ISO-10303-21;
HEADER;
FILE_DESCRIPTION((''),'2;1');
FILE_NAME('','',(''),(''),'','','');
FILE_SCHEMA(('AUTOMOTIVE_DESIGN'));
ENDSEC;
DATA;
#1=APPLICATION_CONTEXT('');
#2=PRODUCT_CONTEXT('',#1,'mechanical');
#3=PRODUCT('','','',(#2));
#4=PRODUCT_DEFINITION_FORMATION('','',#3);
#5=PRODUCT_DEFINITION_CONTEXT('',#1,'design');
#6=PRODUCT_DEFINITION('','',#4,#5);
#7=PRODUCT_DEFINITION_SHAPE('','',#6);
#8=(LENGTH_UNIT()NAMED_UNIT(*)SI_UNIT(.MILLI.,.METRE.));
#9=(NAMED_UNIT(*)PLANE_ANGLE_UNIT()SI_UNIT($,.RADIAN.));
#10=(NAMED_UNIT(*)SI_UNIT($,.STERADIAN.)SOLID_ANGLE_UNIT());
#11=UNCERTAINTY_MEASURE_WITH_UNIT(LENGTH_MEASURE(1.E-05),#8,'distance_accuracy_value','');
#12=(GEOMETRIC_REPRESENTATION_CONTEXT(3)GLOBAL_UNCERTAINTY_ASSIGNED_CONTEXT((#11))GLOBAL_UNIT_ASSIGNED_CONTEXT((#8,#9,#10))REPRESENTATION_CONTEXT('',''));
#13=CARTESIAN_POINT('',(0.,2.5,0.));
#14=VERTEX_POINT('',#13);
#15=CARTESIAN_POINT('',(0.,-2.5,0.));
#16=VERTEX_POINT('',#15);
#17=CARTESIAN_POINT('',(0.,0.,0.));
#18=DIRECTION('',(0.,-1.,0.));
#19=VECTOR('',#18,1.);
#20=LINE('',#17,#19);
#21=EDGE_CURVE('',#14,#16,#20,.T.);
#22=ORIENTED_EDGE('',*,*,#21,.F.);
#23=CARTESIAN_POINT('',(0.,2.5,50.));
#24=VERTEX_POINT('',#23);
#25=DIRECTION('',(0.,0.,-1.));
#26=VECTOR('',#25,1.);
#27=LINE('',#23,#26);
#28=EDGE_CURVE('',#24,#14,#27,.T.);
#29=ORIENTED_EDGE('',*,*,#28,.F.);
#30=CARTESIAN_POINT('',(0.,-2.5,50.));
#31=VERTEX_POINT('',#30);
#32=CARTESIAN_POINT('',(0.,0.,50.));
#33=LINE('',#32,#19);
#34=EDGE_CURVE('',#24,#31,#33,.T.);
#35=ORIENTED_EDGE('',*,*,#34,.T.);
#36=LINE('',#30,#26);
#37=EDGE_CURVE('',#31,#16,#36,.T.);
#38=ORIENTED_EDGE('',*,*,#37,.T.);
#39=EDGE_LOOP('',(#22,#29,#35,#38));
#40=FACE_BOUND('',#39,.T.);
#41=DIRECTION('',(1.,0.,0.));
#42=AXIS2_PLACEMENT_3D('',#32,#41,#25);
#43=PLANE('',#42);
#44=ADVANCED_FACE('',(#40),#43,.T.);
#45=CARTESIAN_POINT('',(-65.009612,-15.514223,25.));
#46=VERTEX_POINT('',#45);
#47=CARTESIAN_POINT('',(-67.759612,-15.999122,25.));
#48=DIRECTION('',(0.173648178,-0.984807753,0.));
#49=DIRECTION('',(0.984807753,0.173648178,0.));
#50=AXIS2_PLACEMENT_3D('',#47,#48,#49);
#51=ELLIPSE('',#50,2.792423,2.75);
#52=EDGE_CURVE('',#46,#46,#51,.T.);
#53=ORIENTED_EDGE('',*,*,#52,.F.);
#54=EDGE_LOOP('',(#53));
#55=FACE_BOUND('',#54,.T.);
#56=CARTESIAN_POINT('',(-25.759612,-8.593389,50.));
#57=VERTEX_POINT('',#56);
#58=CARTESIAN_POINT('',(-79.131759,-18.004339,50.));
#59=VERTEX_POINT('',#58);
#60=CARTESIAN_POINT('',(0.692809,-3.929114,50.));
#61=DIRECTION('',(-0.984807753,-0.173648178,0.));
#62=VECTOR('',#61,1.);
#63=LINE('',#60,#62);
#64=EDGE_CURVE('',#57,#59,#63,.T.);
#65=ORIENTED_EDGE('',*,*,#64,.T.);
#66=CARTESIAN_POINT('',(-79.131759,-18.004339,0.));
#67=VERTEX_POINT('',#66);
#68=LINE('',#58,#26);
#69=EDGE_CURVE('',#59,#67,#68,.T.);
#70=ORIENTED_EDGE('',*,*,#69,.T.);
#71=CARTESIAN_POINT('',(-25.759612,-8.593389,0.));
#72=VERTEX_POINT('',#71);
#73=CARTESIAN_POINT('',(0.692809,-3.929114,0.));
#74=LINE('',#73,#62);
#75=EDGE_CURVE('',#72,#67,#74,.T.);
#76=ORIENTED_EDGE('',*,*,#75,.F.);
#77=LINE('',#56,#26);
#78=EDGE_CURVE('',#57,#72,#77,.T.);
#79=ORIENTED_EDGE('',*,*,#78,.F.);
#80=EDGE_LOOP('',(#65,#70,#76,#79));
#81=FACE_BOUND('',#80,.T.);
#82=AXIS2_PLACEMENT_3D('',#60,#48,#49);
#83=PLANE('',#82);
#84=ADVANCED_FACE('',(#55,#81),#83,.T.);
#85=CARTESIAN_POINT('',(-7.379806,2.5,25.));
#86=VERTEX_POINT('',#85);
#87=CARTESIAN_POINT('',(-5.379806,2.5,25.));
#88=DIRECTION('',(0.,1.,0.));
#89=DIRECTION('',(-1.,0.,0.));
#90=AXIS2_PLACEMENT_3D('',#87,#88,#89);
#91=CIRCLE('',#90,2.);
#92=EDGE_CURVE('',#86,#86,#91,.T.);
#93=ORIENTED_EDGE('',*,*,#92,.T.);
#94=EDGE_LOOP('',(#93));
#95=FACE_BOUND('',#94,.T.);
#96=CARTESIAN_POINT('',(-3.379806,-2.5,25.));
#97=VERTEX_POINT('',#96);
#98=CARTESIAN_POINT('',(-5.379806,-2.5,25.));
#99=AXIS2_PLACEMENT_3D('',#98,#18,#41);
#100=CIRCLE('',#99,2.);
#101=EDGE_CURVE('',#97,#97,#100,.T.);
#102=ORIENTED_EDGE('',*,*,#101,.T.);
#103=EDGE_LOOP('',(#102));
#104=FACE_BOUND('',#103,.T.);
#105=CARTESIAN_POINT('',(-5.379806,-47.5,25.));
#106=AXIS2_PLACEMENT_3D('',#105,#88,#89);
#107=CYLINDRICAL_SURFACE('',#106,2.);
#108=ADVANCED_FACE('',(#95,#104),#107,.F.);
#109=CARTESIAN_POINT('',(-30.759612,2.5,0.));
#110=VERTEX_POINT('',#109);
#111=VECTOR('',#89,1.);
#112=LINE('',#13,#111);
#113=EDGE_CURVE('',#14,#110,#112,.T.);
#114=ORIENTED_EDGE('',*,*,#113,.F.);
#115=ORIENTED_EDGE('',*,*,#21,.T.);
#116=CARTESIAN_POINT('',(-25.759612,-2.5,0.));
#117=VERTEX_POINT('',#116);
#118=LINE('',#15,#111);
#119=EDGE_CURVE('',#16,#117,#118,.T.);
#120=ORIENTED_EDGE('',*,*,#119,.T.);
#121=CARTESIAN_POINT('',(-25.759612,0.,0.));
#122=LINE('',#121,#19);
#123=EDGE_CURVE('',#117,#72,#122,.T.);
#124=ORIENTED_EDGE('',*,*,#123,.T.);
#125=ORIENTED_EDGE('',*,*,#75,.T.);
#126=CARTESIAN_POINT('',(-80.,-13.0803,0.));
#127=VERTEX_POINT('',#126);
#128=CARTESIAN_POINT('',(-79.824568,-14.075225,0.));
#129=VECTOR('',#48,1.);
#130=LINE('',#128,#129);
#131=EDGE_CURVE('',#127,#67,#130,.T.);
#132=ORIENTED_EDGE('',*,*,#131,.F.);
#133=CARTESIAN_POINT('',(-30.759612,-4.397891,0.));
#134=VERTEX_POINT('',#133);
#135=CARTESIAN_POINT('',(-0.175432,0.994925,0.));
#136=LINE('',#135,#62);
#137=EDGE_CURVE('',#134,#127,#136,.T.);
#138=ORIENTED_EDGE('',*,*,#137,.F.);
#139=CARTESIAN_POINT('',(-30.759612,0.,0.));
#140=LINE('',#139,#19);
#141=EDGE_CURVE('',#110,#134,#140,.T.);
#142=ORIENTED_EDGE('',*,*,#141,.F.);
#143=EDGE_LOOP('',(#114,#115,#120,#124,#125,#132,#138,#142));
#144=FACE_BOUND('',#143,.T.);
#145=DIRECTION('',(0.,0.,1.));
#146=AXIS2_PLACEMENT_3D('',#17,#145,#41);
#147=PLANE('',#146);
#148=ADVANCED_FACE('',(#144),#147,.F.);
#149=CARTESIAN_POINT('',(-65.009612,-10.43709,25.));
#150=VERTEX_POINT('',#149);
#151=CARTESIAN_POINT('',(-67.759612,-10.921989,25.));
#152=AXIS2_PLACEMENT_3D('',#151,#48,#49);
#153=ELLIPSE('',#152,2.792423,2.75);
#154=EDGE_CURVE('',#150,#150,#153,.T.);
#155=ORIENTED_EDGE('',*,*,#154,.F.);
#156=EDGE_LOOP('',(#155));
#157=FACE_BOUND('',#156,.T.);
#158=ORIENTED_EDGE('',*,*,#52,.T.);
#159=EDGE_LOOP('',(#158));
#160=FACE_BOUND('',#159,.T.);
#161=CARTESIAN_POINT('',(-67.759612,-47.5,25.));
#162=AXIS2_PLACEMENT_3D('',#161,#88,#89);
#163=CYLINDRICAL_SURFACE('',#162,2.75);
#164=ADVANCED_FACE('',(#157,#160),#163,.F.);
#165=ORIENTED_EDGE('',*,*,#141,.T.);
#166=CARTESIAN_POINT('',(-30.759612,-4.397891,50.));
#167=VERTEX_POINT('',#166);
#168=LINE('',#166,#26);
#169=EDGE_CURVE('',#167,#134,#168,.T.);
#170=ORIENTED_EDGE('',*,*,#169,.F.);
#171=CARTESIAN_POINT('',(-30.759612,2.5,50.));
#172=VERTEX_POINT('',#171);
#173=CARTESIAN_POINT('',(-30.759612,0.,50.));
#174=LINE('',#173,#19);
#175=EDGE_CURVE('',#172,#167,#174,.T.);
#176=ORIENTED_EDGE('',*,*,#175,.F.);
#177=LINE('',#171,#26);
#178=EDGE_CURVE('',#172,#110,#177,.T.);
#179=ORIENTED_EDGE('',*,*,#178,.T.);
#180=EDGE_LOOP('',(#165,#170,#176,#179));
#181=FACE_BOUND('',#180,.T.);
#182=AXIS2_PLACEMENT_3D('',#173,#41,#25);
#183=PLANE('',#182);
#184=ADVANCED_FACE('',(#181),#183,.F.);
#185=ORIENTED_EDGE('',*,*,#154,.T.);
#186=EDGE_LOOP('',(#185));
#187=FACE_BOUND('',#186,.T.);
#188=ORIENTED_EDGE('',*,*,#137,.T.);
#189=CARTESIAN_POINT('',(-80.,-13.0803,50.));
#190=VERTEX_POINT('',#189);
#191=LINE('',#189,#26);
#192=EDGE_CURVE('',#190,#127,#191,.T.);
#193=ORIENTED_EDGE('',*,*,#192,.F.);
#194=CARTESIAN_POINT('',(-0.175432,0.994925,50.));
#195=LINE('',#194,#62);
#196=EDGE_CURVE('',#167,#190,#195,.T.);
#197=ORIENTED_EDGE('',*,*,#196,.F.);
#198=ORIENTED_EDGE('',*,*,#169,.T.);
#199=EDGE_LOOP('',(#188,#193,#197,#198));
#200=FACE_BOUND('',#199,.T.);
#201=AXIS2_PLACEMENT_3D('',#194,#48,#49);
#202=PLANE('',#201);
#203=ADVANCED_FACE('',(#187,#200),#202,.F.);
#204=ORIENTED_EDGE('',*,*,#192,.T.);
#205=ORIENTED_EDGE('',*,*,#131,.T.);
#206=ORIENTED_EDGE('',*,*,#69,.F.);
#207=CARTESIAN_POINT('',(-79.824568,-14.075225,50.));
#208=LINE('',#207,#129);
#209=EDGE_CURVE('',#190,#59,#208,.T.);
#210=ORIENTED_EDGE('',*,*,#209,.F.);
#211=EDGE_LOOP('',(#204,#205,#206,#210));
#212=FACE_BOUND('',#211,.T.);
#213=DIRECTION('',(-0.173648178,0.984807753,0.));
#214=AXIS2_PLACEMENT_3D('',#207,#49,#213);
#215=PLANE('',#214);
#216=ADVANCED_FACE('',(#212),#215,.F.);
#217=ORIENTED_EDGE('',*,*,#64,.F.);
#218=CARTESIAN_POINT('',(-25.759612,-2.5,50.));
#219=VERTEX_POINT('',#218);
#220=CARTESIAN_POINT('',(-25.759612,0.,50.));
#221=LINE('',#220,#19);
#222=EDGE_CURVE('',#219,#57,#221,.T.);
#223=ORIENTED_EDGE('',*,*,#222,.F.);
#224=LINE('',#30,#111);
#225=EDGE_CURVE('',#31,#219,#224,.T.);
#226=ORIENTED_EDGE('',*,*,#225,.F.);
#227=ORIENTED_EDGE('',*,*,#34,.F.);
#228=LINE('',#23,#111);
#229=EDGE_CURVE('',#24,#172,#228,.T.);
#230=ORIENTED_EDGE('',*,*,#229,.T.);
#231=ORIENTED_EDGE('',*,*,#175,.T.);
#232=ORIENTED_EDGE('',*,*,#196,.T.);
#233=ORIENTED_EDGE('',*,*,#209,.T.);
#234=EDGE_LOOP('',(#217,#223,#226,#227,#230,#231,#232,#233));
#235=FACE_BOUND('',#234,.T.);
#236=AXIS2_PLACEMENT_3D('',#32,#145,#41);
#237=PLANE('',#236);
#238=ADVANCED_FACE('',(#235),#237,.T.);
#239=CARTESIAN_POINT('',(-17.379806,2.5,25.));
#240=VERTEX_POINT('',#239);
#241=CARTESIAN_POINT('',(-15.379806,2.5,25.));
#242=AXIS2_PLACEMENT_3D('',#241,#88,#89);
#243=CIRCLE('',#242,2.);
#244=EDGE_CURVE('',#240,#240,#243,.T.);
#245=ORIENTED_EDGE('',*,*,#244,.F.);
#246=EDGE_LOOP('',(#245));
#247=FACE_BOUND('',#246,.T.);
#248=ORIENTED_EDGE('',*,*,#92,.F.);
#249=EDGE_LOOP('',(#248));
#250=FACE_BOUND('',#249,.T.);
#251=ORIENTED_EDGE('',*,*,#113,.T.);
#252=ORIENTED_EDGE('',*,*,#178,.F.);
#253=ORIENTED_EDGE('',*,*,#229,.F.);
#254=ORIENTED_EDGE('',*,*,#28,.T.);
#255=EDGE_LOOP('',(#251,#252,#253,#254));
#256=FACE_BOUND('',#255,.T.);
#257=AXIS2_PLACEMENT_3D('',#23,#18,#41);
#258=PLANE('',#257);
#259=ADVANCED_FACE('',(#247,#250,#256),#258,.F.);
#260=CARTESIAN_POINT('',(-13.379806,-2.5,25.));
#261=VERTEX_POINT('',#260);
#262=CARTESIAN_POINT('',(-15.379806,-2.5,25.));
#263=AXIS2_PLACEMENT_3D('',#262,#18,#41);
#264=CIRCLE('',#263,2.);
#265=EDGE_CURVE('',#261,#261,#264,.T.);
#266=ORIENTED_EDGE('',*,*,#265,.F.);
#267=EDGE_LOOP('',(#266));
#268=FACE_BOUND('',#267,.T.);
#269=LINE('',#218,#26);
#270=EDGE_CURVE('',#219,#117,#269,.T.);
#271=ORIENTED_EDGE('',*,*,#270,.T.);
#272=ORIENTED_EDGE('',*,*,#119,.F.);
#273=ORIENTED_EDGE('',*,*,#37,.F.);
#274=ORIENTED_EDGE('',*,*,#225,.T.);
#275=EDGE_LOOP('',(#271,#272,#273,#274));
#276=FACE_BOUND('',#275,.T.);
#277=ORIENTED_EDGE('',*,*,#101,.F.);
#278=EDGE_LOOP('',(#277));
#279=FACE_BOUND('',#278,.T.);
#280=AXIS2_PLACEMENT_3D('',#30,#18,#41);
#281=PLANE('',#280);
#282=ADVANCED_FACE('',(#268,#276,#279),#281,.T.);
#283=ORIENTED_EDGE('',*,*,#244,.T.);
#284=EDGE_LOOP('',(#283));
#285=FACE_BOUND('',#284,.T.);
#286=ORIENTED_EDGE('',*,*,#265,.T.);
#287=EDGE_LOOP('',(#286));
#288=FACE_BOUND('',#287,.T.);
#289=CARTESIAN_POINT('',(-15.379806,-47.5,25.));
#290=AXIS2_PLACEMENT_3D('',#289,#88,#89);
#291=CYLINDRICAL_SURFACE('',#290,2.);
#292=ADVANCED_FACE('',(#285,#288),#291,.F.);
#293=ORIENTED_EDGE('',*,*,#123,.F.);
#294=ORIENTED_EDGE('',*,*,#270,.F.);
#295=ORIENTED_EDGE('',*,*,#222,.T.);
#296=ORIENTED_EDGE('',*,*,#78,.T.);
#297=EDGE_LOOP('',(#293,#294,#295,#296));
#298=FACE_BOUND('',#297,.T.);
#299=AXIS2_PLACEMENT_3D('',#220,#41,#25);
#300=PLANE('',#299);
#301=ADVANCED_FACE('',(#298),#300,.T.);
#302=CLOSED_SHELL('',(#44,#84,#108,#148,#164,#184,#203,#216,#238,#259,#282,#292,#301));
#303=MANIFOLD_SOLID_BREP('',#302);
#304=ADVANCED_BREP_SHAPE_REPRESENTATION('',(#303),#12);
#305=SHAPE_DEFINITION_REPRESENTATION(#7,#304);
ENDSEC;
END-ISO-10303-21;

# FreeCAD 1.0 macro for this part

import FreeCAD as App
import Part
import Sketcher
Q = App.Units.Quantity


def add_polygon(sketch, points):
    """Adds a closed chain of lines whose ends are joined by coincident constraints."""
    first, n = sketch.GeometryCount, len(points)
    for a, b in zip(points, points[1:] + points[:1]):
        sketch.addGeometry(Part.LineSegment(App.Vector(*a, 0), App.Vector(*b, 0)), False)
    for i in range(n):
        sketch.addConstraint(Sketcher.Constraint("Coincident", first + i, 2, first + (i + 1) % n, 1))

doc = App.newDocument("Part")
body = doc.addObject("PartDesign::Body", "Body")

# Sketch on XY plane
sketch1 = doc.addObject("Sketcher::SketchObject", "Sketch")
body.addObject(sketch1)
sketch1.AttachmentSupport = (doc.XY_Plane, [""])
sketch1.MapMode = "FlatFace"
add_polygon(sketch1, [(0, 2.5), (-30.8, 2.5), (-30.8, -4.4), (-80, -13.1), (-79.1, -18), (-25.8, -8.6), (-25.8, -2.5), (0, -2.5)])  # lines 0-7
sketch1.addConstraint([
    Sketcher.Constraint("Horizontal", 0),
    Sketcher.Constraint("Vertical", 1),
    Sketcher.Constraint("Vertical", 5),
    Sketcher.Constraint("Horizontal", 6),
    Sketcher.Constraint("Vertical", 7),
    Sketcher.Constraint("Symmetric", 6, 2, 7, 2, -1, 1),
    Sketcher.Constraint("Perpendicular", 2, 3),
    Sketcher.Constraint("Perpendicular", 3, 4),
    Sketcher.Constraint("DistanceY", 7, 1, 7, 2, Q("5 mm")),
    Sketcher.Constraint("Angle", 2, Q("-170 deg")),
    Sketcher.Constraint("Distance", 2, Q("50 mm")),
    Sketcher.Constraint("Distance", 3, Q("5 mm")),
    Sketcher.Constraint("DistanceX", 2, 2, -1, 1, Q("80 mm")),
    Sketcher.Constraint("DistanceX", 1, 2, 4, 2, Q("5 mm")),
    Sketcher.Constraint("DistanceY", 1, 2, 1, 1, Q("6.897891 mm")),
])
pad1 = doc.addObject("PartDesign::Pad", "Pad")
body.addObject(pad1)
pad1.Profile = sketch1
pad1.Length = 50

# Sketch on XZ plane
sketch2 = doc.addObject("Sketcher::SketchObject", "Sketch001")
body.addObject(sketch2)
sketch2.AttachmentSupport = (doc.XZ_Plane, [""])
sketch2.MapMode = "FlatFace"
sketch2.AttachmentOffset = App.Placement(App.Vector(0, 0, -2.5), App.Rotation())
sketch2.addGeometry([
    Part.Circle(App.Vector(-67.8, 25, 0), App.Vector(0, 0, 1), 2.8),
    Part.Circle(App.Vector(-15.4, 25, 0), App.Vector(0, 0, 1), 2),
    Part.Circle(App.Vector(-5.4, 25, 0), App.Vector(0, 0, 1), 2),
], False)
sketch2.addConstraint([
    Sketcher.Constraint("Equal", 1, 2),
    Sketcher.Constraint("Horizontal", 0, 3, 1, 3),
    Sketcher.Constraint("Horizontal", 1, 3, 2, 3),
    Sketcher.Constraint("Diameter", 1, Q("4 mm")),
    Sketcher.Constraint("Diameter", 0, Q("5.5 mm")),
    Sketcher.Constraint("DistanceY", -1, 1, 0, 3, Q("25 mm")),
    Sketcher.Constraint("DistanceX", 1, 3, 2, 3, Q("10 mm")),
    Sketcher.Constraint("DistanceX", 0, 3, -1, 1, Q("67.759612 mm")),
    Sketcher.Constraint("DistanceX", 1, 3, -1, 1, Q("15.379806 mm")),
])
pocket1 = doc.addObject("PartDesign::Pocket", "Pocket")
body.addObject(pocket1)
pocket1.Profile = sketch2
pocket1.Length = 50
pocket1.Reversed = True

doc.recompute()
